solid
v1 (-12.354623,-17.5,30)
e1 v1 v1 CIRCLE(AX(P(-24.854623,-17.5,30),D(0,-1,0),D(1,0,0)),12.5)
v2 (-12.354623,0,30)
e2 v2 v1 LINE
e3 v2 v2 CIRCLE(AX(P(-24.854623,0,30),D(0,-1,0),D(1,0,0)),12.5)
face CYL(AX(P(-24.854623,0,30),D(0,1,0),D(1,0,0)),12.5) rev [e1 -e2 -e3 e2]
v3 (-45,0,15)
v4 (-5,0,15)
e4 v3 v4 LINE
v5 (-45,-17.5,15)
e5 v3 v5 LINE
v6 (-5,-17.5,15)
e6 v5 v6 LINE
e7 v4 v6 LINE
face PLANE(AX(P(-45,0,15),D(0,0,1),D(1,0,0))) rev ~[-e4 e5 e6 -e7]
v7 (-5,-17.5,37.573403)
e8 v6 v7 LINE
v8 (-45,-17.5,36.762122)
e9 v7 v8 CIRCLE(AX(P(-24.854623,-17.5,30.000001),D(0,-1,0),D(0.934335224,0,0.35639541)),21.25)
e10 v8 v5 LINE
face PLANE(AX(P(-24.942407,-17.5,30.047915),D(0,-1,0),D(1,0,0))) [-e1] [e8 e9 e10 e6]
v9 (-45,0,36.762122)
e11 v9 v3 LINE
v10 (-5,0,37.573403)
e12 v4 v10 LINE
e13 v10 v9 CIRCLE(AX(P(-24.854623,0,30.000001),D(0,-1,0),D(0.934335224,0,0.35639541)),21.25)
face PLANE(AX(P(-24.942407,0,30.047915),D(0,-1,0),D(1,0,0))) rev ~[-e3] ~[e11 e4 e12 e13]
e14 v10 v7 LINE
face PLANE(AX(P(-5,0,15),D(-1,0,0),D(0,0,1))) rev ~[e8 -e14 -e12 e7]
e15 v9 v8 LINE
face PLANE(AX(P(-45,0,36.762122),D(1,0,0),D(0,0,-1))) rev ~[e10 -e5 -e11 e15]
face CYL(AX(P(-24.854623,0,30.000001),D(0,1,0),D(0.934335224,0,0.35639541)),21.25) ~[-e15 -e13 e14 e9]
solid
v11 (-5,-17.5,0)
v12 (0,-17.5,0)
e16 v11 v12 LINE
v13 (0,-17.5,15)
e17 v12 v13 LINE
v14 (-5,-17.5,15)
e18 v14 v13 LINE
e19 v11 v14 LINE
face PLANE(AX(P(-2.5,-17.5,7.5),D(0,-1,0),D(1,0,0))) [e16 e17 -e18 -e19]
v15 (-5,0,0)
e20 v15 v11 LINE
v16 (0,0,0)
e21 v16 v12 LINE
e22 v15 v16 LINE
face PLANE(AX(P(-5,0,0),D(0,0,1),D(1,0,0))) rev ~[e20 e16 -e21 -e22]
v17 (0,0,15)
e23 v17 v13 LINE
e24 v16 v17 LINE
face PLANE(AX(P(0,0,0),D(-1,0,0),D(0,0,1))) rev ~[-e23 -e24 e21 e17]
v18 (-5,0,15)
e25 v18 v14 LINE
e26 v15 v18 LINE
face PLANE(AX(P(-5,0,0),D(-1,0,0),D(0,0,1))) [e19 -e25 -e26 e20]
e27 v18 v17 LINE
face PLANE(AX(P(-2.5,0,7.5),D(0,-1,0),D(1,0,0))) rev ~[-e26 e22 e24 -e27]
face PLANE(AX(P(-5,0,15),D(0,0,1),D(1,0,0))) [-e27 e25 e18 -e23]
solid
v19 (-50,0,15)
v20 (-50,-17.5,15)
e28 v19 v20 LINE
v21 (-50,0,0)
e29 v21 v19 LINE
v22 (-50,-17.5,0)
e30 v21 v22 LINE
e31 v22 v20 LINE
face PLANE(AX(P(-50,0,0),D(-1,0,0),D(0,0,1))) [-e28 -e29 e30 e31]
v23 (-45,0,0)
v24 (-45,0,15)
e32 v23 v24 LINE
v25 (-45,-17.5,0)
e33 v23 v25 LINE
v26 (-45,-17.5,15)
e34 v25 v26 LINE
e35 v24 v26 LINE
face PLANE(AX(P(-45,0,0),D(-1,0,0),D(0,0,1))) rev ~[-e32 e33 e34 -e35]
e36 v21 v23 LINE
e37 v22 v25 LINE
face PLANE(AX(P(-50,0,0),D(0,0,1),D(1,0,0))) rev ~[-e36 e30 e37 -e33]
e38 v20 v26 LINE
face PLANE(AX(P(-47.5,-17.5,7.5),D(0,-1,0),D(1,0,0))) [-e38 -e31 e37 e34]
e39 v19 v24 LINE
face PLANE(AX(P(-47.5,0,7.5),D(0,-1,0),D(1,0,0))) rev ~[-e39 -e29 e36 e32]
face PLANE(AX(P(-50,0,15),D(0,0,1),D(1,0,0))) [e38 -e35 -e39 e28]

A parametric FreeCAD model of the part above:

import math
import FreeCAD as App
import Part
import Sketcher
Q = App.Units.Quantity

doc = App.newDocument("Part")
body = doc.addObject("PartDesign::Body", "Body")
body.AllowCompound = True

# Sketch on XZ plane
sketch1 = doc.addObject("Sketcher::SketchObject", "Sketch")
body.addObject(sketch1)
sketch1.AttachmentSupport = (doc.XZ_Plane, [""])
sketch1.MapMode = "FlatFace"
sketch1.addGeometry([
    Part.LineSegment(App.Vector(-50, 15, 0), App.Vector(-50, 0, 0)),  # 0
    Part.LineSegment(App.Vector(-50, 0, 0), App.Vector(-45, 0, 0)),  # 1
    Part.LineSegment(App.Vector(-45, 0, 0), App.Vector(-45, 15, 0)),  # 2
    Part.LineSegment(App.Vector(-45, 15, 0), App.Vector(-50, 15, 0)),  # 3
    Part.LineSegment(App.Vector(-45, 15, 0), App.Vector(-5, 15, 0)),  # 4
    Part.LineSegment(App.Vector(-5, 15, 0), App.Vector(-5, 38, 0)),  # 5
    Part.ArcOfCircle(Part.Circle(App.Vector(-25, 30, 0), App.Vector(0, 0, 1), 21), math.radians(21), math.radians(161)),  # 6
    Part.LineSegment(App.Vector(-45, 37, 0), App.Vector(-45, 15, 0)),  # 7
    Part.Circle(App.Vector(-25, 30, 0), App.Vector(0, 0, 1), 12),  # 8
    Part.LineSegment(App.Vector(-5, 15, 0), App.Vector(-5, 0, 0)),  # 9
    Part.LineSegment(App.Vector(-5, 0, 0), App.Vector(0, 0, 0)),  # 10
    Part.LineSegment(App.Vector(0, 0, 0), App.Vector(0, 15, 0)),  # 11
    Part.LineSegment(App.Vector(0, 15, 0), App.Vector(-5, 15, 0)),  # 12
], False)
sketch1.addConstraint([
    Sketcher.Constraint("Coincident", 0, 2, 1, 1),
    Sketcher.Constraint("Coincident", 1, 2, 2, 1),
    Sketcher.Constraint("Coincident", 2, 2, 3, 1),
    Sketcher.Constraint("Coincident", 3, 2, 0, 1),
    Sketcher.Constraint("Coincident", 4, 2, 5, 1),
    Sketcher.Constraint("Coincident", 5, 2, 6, 1),
    Sketcher.Constraint("Coincident", 6, 2, 7, 1),
    Sketcher.Constraint("Coincident", 7, 2, 4, 1),
    Sketcher.Constraint("Coincident", 9, 2, 10, 1),
    Sketcher.Constraint("Coincident", 10, 2, 11, 1),
    Sketcher.Constraint("Coincident", 11, 2, 12, 1),
    Sketcher.Constraint("Coincident", 12, 2, 9, 1),
    Sketcher.Constraint("Vertical", 0),
    Sketcher.Constraint("Horizontal", 1),
    Sketcher.Constraint("Vertical", 2),
    Sketcher.Constraint("Horizontal", 3),
    Sketcher.Constraint("Horizontal", 4),
    Sketcher.Constraint("Vertical", 5),
    Sketcher.Constraint("Vertical", 7),
    Sketcher.Constraint("Vertical", 9),
    Sketcher.Constraint("Horizontal", 10),
    Sketcher.Constraint("Vertical", 11),
    Sketcher.Constraint("Horizontal", 12),
    Sketcher.Constraint("Coincident", 10, 2, -1, 1),
    Sketcher.Constraint("Coincident", 8, 3, 6, 3),
    Sketcher.Constraint("Coincident", 7, 2, 2, 2),
    Sketcher.Constraint("Coincident", 12, 2, 4, 2),
    Sketcher.Constraint("PointOnObject", 0, 2, -1),
    Sketcher.Constraint("Equal", 3, 10),
    Sketcher.Constraint("Diameter", 8, Q("25 mm")),
    Sketcher.Constraint("DistanceX", 1, 1, 1, 2, Q("5 mm")),
    Sketcher.Constraint("DistanceX", 4, 1, 4, 2, Q("40 mm")),
    Sketcher.Constraint("DistanceY", 0, 2, 0, 1, Q("15 mm")),
    Sketcher.Constraint("Radius", 6, Q("21.25 mm")),
    Sketcher.Constraint("DistanceY", -1, 1, 6, 3, Q("30.000001 mm")),
    Sketcher.Constraint("DistanceY", 7, 2, 7, 1, Q("21.762122 mm")),
])
pad1 = doc.addObject("PartDesign::Pad", "Pad")
body.addObject(pad1)
pad1.Profile = sketch1
pad1.Length = 17.5

doc.recompute()
